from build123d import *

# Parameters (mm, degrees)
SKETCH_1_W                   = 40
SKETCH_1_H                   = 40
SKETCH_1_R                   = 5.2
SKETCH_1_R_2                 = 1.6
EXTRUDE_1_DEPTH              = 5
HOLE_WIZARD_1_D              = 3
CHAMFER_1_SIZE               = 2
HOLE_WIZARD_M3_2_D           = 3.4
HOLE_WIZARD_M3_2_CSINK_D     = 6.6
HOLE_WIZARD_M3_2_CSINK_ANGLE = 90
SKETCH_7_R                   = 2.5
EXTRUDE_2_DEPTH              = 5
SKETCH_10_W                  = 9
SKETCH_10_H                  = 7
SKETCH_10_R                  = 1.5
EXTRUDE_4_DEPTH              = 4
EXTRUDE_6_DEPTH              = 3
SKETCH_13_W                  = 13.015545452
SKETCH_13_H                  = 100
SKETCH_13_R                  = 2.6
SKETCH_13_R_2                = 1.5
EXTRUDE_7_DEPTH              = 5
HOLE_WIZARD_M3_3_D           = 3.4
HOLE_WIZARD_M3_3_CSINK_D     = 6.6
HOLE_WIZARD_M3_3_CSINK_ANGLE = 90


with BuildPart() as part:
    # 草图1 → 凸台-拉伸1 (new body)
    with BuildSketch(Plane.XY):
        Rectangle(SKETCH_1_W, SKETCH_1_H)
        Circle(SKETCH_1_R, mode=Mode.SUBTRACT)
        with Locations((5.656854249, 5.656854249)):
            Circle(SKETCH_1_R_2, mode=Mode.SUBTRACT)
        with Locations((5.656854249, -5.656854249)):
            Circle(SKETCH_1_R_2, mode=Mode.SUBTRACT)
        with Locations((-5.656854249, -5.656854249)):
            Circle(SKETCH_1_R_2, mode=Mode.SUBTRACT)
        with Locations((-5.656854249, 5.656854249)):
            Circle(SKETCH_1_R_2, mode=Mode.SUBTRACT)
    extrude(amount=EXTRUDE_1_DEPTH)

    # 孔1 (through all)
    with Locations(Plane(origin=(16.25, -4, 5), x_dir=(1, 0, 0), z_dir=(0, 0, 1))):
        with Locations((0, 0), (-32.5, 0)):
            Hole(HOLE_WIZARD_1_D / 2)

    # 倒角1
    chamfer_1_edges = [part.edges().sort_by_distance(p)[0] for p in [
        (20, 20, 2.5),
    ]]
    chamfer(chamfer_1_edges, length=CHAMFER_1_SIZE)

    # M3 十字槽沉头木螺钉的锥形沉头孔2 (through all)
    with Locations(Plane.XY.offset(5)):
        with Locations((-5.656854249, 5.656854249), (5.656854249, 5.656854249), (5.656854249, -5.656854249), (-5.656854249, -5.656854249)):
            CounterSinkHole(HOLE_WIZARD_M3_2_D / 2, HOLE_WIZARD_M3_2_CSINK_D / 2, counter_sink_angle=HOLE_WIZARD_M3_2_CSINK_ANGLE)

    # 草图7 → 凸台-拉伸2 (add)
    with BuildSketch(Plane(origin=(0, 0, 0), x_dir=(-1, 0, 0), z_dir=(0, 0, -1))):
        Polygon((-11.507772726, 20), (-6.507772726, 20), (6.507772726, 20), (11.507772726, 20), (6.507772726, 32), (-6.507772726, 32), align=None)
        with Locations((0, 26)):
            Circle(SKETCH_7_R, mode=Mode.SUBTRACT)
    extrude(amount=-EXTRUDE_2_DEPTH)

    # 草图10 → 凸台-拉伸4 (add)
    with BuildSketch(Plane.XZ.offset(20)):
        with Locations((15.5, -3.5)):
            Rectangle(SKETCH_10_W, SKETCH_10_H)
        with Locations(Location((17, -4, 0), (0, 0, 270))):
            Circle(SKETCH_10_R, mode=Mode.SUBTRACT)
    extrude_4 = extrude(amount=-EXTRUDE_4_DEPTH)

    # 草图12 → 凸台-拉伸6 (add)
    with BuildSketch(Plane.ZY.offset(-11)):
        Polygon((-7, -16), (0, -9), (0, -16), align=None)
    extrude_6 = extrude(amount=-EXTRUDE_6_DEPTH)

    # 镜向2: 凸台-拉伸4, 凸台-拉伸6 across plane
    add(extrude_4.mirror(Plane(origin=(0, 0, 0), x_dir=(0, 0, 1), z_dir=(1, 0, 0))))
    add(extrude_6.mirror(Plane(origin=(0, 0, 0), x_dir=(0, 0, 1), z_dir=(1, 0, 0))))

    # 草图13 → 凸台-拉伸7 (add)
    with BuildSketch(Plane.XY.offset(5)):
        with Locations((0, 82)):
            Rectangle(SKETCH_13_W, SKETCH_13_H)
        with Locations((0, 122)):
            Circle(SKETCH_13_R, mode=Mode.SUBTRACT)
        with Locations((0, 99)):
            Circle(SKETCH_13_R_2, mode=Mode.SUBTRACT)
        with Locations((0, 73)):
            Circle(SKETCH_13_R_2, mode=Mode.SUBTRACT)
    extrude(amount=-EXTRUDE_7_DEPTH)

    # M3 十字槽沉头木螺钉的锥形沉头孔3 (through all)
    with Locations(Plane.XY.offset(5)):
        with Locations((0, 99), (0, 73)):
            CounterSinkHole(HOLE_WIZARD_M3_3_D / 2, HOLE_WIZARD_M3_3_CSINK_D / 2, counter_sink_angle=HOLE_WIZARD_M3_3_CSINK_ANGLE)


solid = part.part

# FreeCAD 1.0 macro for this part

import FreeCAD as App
import Part
import Sketcher

V = App.Vector
Q = App.Units.Quantity


def edges_at(feature, points):
    """Names of the edges that pass closest to the given points."""
    edges = feature.Shape.Edges
    near = lambda p: min(range(len(edges)), key=lambda i: edges[i].distToShape(Part.Vertex(*p))[0])
    return sorted({f"Edge{near(p) + 1}" for p in points})

doc = App.newDocument("Part")
params = doc.addObject("Spreadsheet::Sheet", "Params")
for row, (alias, value) in enumerate([
    ("sketch1_diameter", "3.2 mm"),
    ("sketch1_diameter2", "10.4 mm"),
    ("sketch1_width", "40 mm"),
    ("pad1_length", "5 mm"),
    ("sketch2_diameter", "3 mm"),
    ("hole_diameter", "3 mm"),
    ("chamfer_size", "2 mm"),
    ("sketch3_diameter", "3.4 mm"),
    ("hole2_diameter", "3.4 mm"),
    ("hole2_csink_diameter", "6.6 mm"),
    ("sketch4_diameter", "5 mm"),
    ("sketch4_length", "13 mm"),
    ("pad2_length", "5 mm"),
    ("sketch5_diameter", "3 mm"),
    ("sketch5_width", "9 mm"),
    ("sketch5_height", "7 mm"),
    ("pad3_length", "4 mm"),
    ("sketch6_width", "7 mm"),
    ("pad4_length", "3 mm"),
    ("sketch7_diameter", "3 mm"),
    ("sketch7_diameter2", "5.2 mm"),
    ("sketch7_height", "100 mm"),
    ("pad5_length", "5 mm"),
    ("sketch8_diameter", "3.4 mm"),
    ("hole3_diameter", "3.4 mm"),
    ("hole3_csink_diameter", "6.6 mm"),
], start=1):
    params.set(f"A{row}", alias)
    params.set(f"B{row}", "=" + value)
    params.setAlias(f"B{row}", alias)

body = doc.addObject("PartDesign::Body", "Body")

sketch1 = body.newObject("Sketcher::SketchObject", "Sketch")
sketch1.AttachmentSupport = (doc.getObject("XY_Plane"), [""])
sketch1.MapMode = "FlatFace"
sketch1.addGeometry(Part.LineSegment(V(-20, 20, 0), V(-20, -20, 0)), False)
sketch1.addGeometry(Part.LineSegment(V(-20, -20, 0), V(20, -20, 0)), False)
sketch1.addGeometry(Part.LineSegment(V(20, -20, 0), V(20, 20, 0)), False)
sketch1.addGeometry(Part.LineSegment(V(20, 20, 0), V(-20, 20, 0)), False)
sketch1.addGeometry(Part.Circle(V(-5.7, -5.7, 0), V(0, 0, 1), 1.6), False)
sketch1.addGeometry(Part.Circle(V(5.7, -5.7, 0), V(0, 0, 1), 1.6), False)
sketch1.addGeometry(Part.Circle(V(-5.7, 5.7, 0), V(0, 0, 1), 1.6), False)
sketch1.addGeometry(Part.Circle(V(0, 0, 0), V(0, 0, 1), 5.2), False)
sketch1.addGeometry(Part.Circle(V(5.7, 5.7, 0), V(0, 0, 1), 1.6), False)
sketch1.addConstraint(Sketcher.Constraint("Coincident", 0, 2, 1, 1))
sketch1.addConstraint(Sketcher.Constraint("Coincident", 1, 2, 2, 1))
sketch1.addConstraint(Sketcher.Constraint("Coincident", 2, 2, 3, 1))
sketch1.addConstraint(Sketcher.Constraint("Coincident", 3, 2, 0, 1))
sketch1.addConstraint(Sketcher.Constraint("Vertical", 0))
sketch1.addConstraint(Sketcher.Constraint("Horizontal", 1))
sketch1.addConstraint(Sketcher.Constraint("Vertical", 2))
sketch1.addConstraint(Sketcher.Constraint("Horizontal", 3))
sketch1.addConstraint(Sketcher.Constraint("Coincident", 7, 3, -1, 1))
sketch1.addConstraint(Sketcher.Constraint("Equal", 4, 5))
sketch1.addConstraint(Sketcher.Constraint("Equal", 5, 6))
sketch1.addConstraint(Sketcher.Constraint("Equal", 6, 8))
sketch1.addConstraint(Sketcher.Constraint("Symmetric", 5, 3, 6, 3, -1, 1))
sketch1.addConstraint(Sketcher.Constraint("Symmetric", 4, 3, 8, 3, -1, 1))
sketch1.addConstraint(Sketcher.Constraint("Symmetric", 0, 2, 2, 2, -1, 1))
sketch1.addConstraint(Sketcher.Constraint("Symmetric", 4, 3, 5, 3, -2))
sketch1.addConstraint(Sketcher.Constraint("Equal", 3, 0))
sketch1.addConstraint(Sketcher.Constraint("Diameter", 4, Q("3.2 mm")))
sketch1.addConstraint(Sketcher.Constraint("Diameter", 7, Q("10.4 mm")))
sketch1.addConstraint(Sketcher.Constraint("DistanceX", 1, 1, 1, 2, Q("40 mm")))
sketch1.addConstraint(Sketcher.Constraint("DistanceX", 4, 3, 5, 3, Q("11.313708 mm")))
sketch1.addConstraint(Sketcher.Constraint("DistanceY", 4, 3, 6, 3, Q("11.313708 mm")))
sketch1.setExpression("Constraints[17]", "Params.sketch1_diameter")
sketch1.setExpression("Constraints[18]", "Params.sketch1_diameter2")
sketch1.setExpression("Constraints[19]", "Params.sketch1_width")
pad1 = body.newObject("PartDesign::Pad", "Pad")
pad1.Profile = sketch1
pad1.setExpression("Length", "Params.pad1_length")

sketch2 = body.newObject("Sketcher::SketchObject", "Sketch001")
sketch2.AttachmentSupport = (doc.getObject("XY_Plane"), [""])
sketch2.MapMode = "FlatFace"
sketch2.AttachmentOffset = App.Placement(V(0, 0, 5), App.Rotation())
sketch2.addGeometry(Part.Circle(V(16.2, -4, 0), V(0, 0, 1), 1.5), False)
sketch2.addGeometry(Part.Circle(V(-16.2, -4, 0), V(0, 0, 1), 1.5), False)
sketch2.addConstraint(Sketcher.Constraint("Equal", 0, 1))
sketch2.addConstraint(Sketcher.Constraint("Symmetric", 0, 3, 1, 3, -2))
sketch2.addConstraint(Sketcher.Constraint("Diameter", 0, Q("3 mm")))
sketch2.addConstraint(Sketcher.Constraint("DistanceY", 0, 3, -1, 1, Q("4 mm")))
sketch2.addConstraint(Sketcher.Constraint("DistanceX", 1, 3, 0, 3, Q("32.5 mm")))
sketch2.setExpression("Constraints[2]", "Params.sketch2_diameter")
doc.recompute()
hole = body.newObject("PartDesign::Hole", "Hole")
hole.Profile = sketch2
hole.ThreadType = "None"
hole.setExpression("Diameter", "Params.hole_diameter")
hole.DepthType = "ThroughAll"
doc.recompute()

chamfer = body.newObject("PartDesign::Chamfer", "Chamfer")
chamfer.Base = (hole, edges_at(hole, [(20, 20, 2.5)]))
chamfer.setExpression("Size", "Params.chamfer_size")

sketch3 = body.newObject("Sketcher::SketchObject", "Sketch002")
sketch3.AttachmentSupport = (doc.getObject("XY_Plane"), [""])
sketch3.MapMode = "FlatFace"
sketch3.AttachmentOffset = App.Placement(V(0, 0, 5), App.Rotation())
sketch3.addGeometry(Part.Circle(V(-5.7, 5.7, 0), V(0, 0, 1), 1.7), False)
sketch3.addGeometry(Part.Circle(V(5.7, 5.7, 0), V(0, 0, 1), 1.7), False)
sketch3.addGeometry(Part.Circle(V(5.7, -5.7, 0), V(0, 0, 1), 1.7), False)
sketch3.addGeometry(Part.Circle(V(-5.7, -5.7, 0), V(0, 0, 1), 1.7), False)
sketch3.addConstraint(Sketcher.Constraint("Equal", 0, 1))
sketch3.addConstraint(Sketcher.Constraint("Equal", 1, 2))
sketch3.addConstraint(Sketcher.Constraint("Equal", 2, 3))
sketch3.addConstraint(Sketcher.Constraint("Symmetric", 0, 3, 2, 3, -1, 1))
sketch3.addConstraint(Sketcher.Constraint("Symmetric", 1, 3, 3, 3, -1, 1))
sketch3.addConstraint(Sketcher.Constraint("Symmetric", 0, 3, 1, 3, -2))
sketch3.addConstraint(Sketcher.Constraint("Diameter", 0, Q("3.4 mm")))
sketch3.addConstraint(Sketcher.Constraint("DistanceX", 0, 3, 1, 3, Q("11.313708 mm")))
sketch3.addConstraint(Sketcher.Constraint("DistanceY", 2, 3, 1, 3, Q("11.313708 mm")))
sketch3.setExpression("Constraints[6]", "Params.sketch3_diameter")
doc.recompute()
hole2 = body.newObject("PartDesign::Hole", "Hole001")
hole2.Profile = sketch3
hole2.ThreadType = "None"
hole2.setExpression("Diameter", "Params.hole2_diameter")
hole2.DepthType = "ThroughAll"
hole2.HoleCutType = "Countersink"
hole2.setExpression("HoleCutDiameter", "Params.hole2_csink_diameter")
hole2.HoleCutCountersinkAngle = 90

sketch4 = body.newObject("Sketcher::SketchObject", "Sketch003")
sketch4.AttachmentSupport = (doc.getObject("XY_Plane"), [""])
sketch4.MapMode = "FlatFace"
sketch4.addGeometry(Part.LineSegment(V(11.5, 20, 0), V(-11.5, 20, 0)), False)
sketch4.addGeometry(Part.LineSegment(V(-11.5, 20, 0), V(-6.5, 32, 0)), False)
sketch4.addGeometry(Part.LineSegment(V(-6.5, 32, 0), V(6.5, 32, 0)), False)
sketch4.addGeometry(Part.LineSegment(V(6.5, 32, 0), V(11.5, 20, 0)), False)
sketch4.addGeometry(Part.Circle(V(0, 26, 0), V(0, 0, 1), 2.5), False)
sketch4.addConstraint(Sketcher.Constraint("Coincident", 0, 2, 1, 1))
sketch4.addConstraint(Sketcher.Constraint("Coincident", 1, 2, 2, 1))
sketch4.addConstraint(Sketcher.Constraint("Coincident", 2, 2, 3, 1))
sketch4.addConstraint(Sketcher.Constraint("Coincident", 3, 2, 0, 1))
sketch4.addConstraint(Sketcher.Constraint("Horizontal", 0))
sketch4.addConstraint(Sketcher.Constraint("Horizontal", 2))
sketch4.addConstraint(Sketcher.Constraint("PointOnObject", 4, 3, -2))
sketch4.addConstraint(Sketcher.Constraint("Equal", 1, 3))
sketch4.addConstraint(Sketcher.Constraint("Diameter", 4, Q("5 mm")))
sketch4.addConstraint(Sketcher.Constraint("Distance", 1, Q("13 mm")))
sketch4.addConstraint(Sketcher.Constraint("DistanceY", -1, 1, 4, 3, Q("26 mm")))
sketch4.addConstraint(Sketcher.Constraint("DistanceY", -1, 1, 0, 2, Q("20 mm")))
sketch4.addConstraint(Sketcher.Constraint("DistanceY", -1, 1, 1, 2, Q("32 mm")))
sketch4.addConstraint(Sketcher.Constraint("DistanceX", 0, 2, 0, 1, Q("23.015545 mm")))
sketch4.addConstraint(Sketcher.Constraint("DistanceX", 0, 2, -1, 1, Q("11.507773 mm")))
sketch4.setExpression("Constraints[8]", "Params.sketch4_diameter")
sketch4.setExpression("Constraints[9]", "Params.sketch4_length")
pad2 = body.newObject("PartDesign::Pad", "Pad001")
pad2.Profile = sketch4
pad2.setExpression("Length", "Params.pad2_length")

sketch5 = body.newObject("Sketcher::SketchObject", "Sketch004")
sketch5.AttachmentSupport = (doc.getObject("XZ_Plane"), [""])
sketch5.MapMode = "FlatFace"
sketch5.AttachmentOffset = App.Placement(V(0, 0, 20), App.Rotation())
sketch5.addGeometry(Part.LineSegment(V(11, 0, 0), V(11, -7, 0)), False)
sketch5.addGeometry(Part.LineSegment(V(11, -7, 0), V(20, -7, 0)), False)
sketch5.addGeometry(Part.LineSegment(V(20, -7, 0), V(20, 0, 0)), False)
sketch5.addGeometry(Part.LineSegment(V(20, 0, 0), V(11, 0, 0)), False)
sketch5.addGeometry(Part.Circle(V(17, -4, 0), V(0, 0, 1), 1.5), False)
sketch5.addConstraint(Sketcher.Constraint("Coincident", 0, 2, 1, 1))
sketch5.addConstraint(Sketcher.Constraint("Coincident", 1, 2, 2, 1))
sketch5.addConstraint(Sketcher.Constraint("Coincident", 2, 2, 3, 1))
sketch5.addConstraint(Sketcher.Constraint("Coincident", 3, 2, 0, 1))
sketch5.addConstraint(Sketcher.Constraint("Vertical", 0))
sketch5.addConstraint(Sketcher.Constraint("Horizontal", 1))
sketch5.addConstraint(Sketcher.Constraint("Vertical", 2))
sketch5.addConstraint(Sketcher.Constraint("Horizontal", 3))
sketch5.addConstraint(Sketcher.Constraint("PointOnObject", 2, 2, -1))
sketch5.addConstraint(Sketcher.Constraint("Diameter", 4, Q("3 mm")))
sketch5.addConstraint(Sketcher.Constraint("DistanceX", 1, 1, 1, 2, Q("9 mm")))
sketch5.addConstraint(Sketcher.Constraint("DistanceY", 0, 2, 0, 1, Q("7 mm")))
sketch5.addConstraint(Sketcher.Constraint("DistanceX", -1, 1, 4, 3, Q("17 mm")))
sketch5.addConstraint(Sketcher.Constraint("DistanceY", 4, 3, -1, 1, Q("4 mm")))
sketch5.addConstraint(Sketcher.Constraint("DistanceX", -1, 1, 0, 2, Q("11 mm")))
sketch5.setExpression("Constraints[9]", "Params.sketch5_diameter")
sketch5.setExpression("Constraints[10]", "Params.sketch5_width")
sketch5.setExpression("Constraints[11]", "Params.sketch5_height")
pad3 = body.newObject("PartDesign::Pad", "Pad002")
pad3.Profile = sketch5
pad3.setExpression("Length", "Params.pad3_length")
pad3.Reversed = True

sketch6 = body.newObject("Sketcher::SketchObject", "Sketch005")
sketch6.AttachmentSupport = (doc.getObject("YZ_Plane"), [""])
sketch6.MapMode = "FlatFace"
sketch6.AttachmentOffset = App.Placement(V(0, 0, 11), App.Rotation())
sketch6.addGeometry(Part.LineSegment(V(-9, 0, 0), V(-16, -7, 0)), False)
sketch6.addGeometry(Part.LineSegment(V(-16, -7, 0), V(-16, 0, 0)), False)
sketch6.addGeometry(Part.LineSegment(V(-16, 0, 0), V(-9, 0, 0)), False)
sketch6.addConstraint(Sketcher.Constraint("Coincident", 0, 2, 1, 1))
sketch6.addConstraint(Sketcher.Constraint("Coincident", 1, 2, 2, 1))
sketch6.addConstraint(Sketcher.Constraint("Coincident", 2, 2, 0, 1))
sketch6.addConstraint(Sketcher.Constraint("Vertical", 1))
sketch6.addConstraint(Sketcher.Constraint("Horizontal", 2))
sketch6.addConstraint(Sketcher.Constraint("PointOnObject", 1, 2, -1))
sketch6.addConstraint(Sketcher.Constraint("Equal", 2, 1))
sketch6.addConstraint(Sketcher.Constraint("DistanceX", 2, 1, 2, 2, Q("7 mm")))
sketch6.addConstraint(Sketcher.Constraint("DistanceX", 0, 2, -1, 1, Q("16 mm")))
sketch6.setExpression("Constraints[7]", "Params.sketch6_width")
pad4 = body.newObject("PartDesign::Pad", "Pad003")
pad4.Profile = sketch6
pad4.setExpression("Length", "Params.pad4_length")
doc.recompute()

mirrored = body.newObject("PartDesign::Mirrored", "Mirrored")
mirrored.Originals = [pad3, pad4]
mirrored.MirrorPlane = (doc.getObject("YZ_Plane"), [""])
body.Tip = mirrored

sketch7 = body.newObject("Sketcher::SketchObject", "Sketch006")
sketch7.AttachmentSupport = (doc.getObject("XY_Plane"), [""])
sketch7.MapMode = "FlatFace"
sketch7.AttachmentOffset = App.Placement(V(0, 0, 5), App.Rotation())
sketch7.addGeometry(Part.LineSegment(V(-6.5, 132, 0), V(-6.5, 32, 0)), False)
sketch7.addGeometry(Part.LineSegment(V(-6.5, 32, 0), V(6.5, 32, 0)), False)
sketch7.addGeometry(Part.LineSegment(V(6.5, 32, 0), V(6.5, 132, 0)), False)
sketch7.addGeometry(Part.LineSegment(V(6.5, 132, 0), V(-6.5, 132, 0)), False)
sketch7.addGeometry(Part.Circle(V(0, 73, 0), V(0, 0, 1), 1.5), False)
sketch7.addGeometry(Part.Circle(V(0, 99, 0), V(0, 0, 1), 1.5), False)
sketch7.addGeometry(Part.Circle(V(0, 122, 0), V(0, 0, 1), 2.6), False)
sketch7.addConstraint(Sketcher.Constraint("Coincident", 0, 2, 1, 1))
sketch7.addConstraint(Sketcher.Constraint("Coincident", 1, 2, 2, 1))
sketch7.addConstraint(Sketcher.Constraint("Coincident", 2, 2, 3, 1))
sketch7.addConstraint(Sketcher.Constraint("Coincident", 3, 2, 0, 1))
sketch7.addConstraint(Sketcher.Constraint("Vertical", 0))
sketch7.addConstraint(Sketcher.Constraint("Horizontal", 1))
sketch7.addConstraint(Sketcher.Constraint("Vertical", 2))
sketch7.addConstraint(Sketcher.Constraint("Horizontal", 3))
sketch7.addConstraint(Sketcher.Constraint("Equal", 4, 5))
sketch7.addConstraint(Sketcher.Constraint("PointOnObject", 4, 3, -2))
sketch7.addConstraint(Sketcher.Constraint("PointOnObject", 5, 3, -2))
sketch7.addConstraint(Sketcher.Constraint("PointOnObject", 6, 3, -2))
sketch7.addConstraint(Sketcher.Constraint("Diameter", 4, Q("3 mm")))
sketch7.addConstraint(Sketcher.Constraint("Diameter", 6, Q("5.2 mm")))
sketch7.addConstraint(Sketcher.Constraint("DistanceY", 0, 2, 0, 1, Q("100 mm")))
sketch7.addConstraint(Sketcher.Constraint("DistanceY", -1, 1, 4, 3, Q("73 mm")))
sketch7.addConstraint(Sketcher.Constraint("DistanceY", -1, 1, 5, 3, Q("99 mm")))
sketch7.addConstraint(Sketcher.Constraint("DistanceY", -1, 1, 6, 3, Q("122 mm")))
sketch7.addConstraint(Sketcher.Constraint("DistanceY", -1, 1, 0, 2, Q("32 mm")))
sketch7.addConstraint(Sketcher.Constraint("DistanceX", 1, 1, 1, 2, Q("13.015545 mm")))
sketch7.addConstraint(Sketcher.Constraint("DistanceX", 0, 2, -1, 1, Q("6.507773 mm")))
sketch7.setExpression("Constraints[12]", "Params.sketch7_diameter")
sketch7.setExpression("Constraints[13]", "Params.sketch7_diameter2")
sketch7.setExpression("Constraints[14]", "Params.sketch7_height")
pad5 = body.newObject("PartDesign::Pad", "Pad004")
pad5.Profile = sketch7
pad5.setExpression("Length", "Params.pad5_length")
pad5.Reversed = True

sketch8 = body.newObject("Sketcher::SketchObject", "Sketch007")
sketch8.AttachmentSupport = (doc.getObject("XY_Plane"), [""])
sketch8.MapMode = "FlatFace"
sketch8.AttachmentOffset = App.Placement(V(0, 0, 5), App.Rotation())
sketch8.addGeometry(Part.Circle(V(0, 99, 0), V(0, 0, 1), 1.7), False)
sketch8.addGeometry(Part.Circle(V(0, 73, 0), V(0, 0, 1), 1.7), False)
sketch8.addConstraint(Sketcher.Constraint("Equal", 0, 1))
sketch8.addConstraint(Sketcher.Constraint("PointOnObject", 0, 3, -2))
sketch8.addConstraint(Sketcher.Constraint("PointOnObject", 1, 3, -2))
sketch8.addConstraint(Sketcher.Constraint("Diameter", 0, Q("3.4 mm")))
sketch8.addConstraint(Sketcher.Constraint("DistanceY", -1, 1, 0, 3, Q("99 mm")))
sketch8.addConstraint(Sketcher.Constraint("DistanceY", -1, 1, 1, 3, Q("73 mm")))
sketch8.setExpression("Constraints[3]", "Params.sketch8_diameter")
doc.recompute()
hole3 = body.newObject("PartDesign::Hole", "Hole002")
hole3.Profile = sketch8
hole3.ThreadType = "None"
hole3.setExpression("Diameter", "Params.hole3_diameter")
hole3.DepthType = "ThroughAll"
hole3.HoleCutType = "Countersink"
hole3.setExpression("HoleCutDiameter", "Params.hole3_csink_diameter")
hole3.HoleCutCountersinkAngle = 90

doc.recompute()
